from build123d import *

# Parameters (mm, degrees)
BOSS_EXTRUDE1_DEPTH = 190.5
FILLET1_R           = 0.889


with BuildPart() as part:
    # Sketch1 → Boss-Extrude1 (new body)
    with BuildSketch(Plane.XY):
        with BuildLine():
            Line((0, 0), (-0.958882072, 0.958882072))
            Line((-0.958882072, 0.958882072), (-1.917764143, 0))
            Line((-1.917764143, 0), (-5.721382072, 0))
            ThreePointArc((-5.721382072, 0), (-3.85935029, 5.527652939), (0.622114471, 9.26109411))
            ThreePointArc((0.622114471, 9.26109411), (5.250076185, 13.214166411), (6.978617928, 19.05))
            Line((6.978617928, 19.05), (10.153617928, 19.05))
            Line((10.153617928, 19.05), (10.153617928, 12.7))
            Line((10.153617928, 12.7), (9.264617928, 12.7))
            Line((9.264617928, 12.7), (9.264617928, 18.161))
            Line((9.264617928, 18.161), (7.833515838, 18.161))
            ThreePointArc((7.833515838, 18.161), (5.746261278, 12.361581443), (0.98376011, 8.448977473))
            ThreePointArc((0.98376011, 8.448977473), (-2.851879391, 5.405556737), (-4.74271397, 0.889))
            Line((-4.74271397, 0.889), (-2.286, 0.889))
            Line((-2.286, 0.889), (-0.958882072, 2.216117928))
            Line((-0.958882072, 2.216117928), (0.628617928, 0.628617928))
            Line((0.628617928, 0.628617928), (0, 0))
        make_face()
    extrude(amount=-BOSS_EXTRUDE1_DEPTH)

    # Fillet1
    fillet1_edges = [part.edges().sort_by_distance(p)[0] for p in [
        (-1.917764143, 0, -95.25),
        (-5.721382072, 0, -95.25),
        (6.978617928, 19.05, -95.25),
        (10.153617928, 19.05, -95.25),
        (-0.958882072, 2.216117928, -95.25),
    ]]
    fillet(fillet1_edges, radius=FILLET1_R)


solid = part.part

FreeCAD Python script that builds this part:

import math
import FreeCAD as App
import Part
import Sketcher
from FreeCAD import Vector
Q = App.Units.Quantity


def edges_at(feature, points):
    """Names of the edges that pass closest to the given points."""
    edges = feature.Shape.Edges
    near = lambda p: min(range(len(edges)), key=lambda i: edges[i].distToShape(Part.Vertex(*p))[0])
    return sorted({f"Edge{near(p) + 1}" for p in points})

doc = App.newDocument("Part")
body = doc.addObject("PartDesign::Body", "Body")

# Sketch on XY plane
sketch1 = doc.addObject("Sketcher::SketchObject", "Sketch")
body.addObject(sketch1)
sketch1.AttachmentSupport = (doc.XY_Plane, [""])
sketch1.MapMode = "FlatFace"
sketch1.addGeometry([
    Part.LineSegment(Vector(-1, 1, 0), Vector(0, 0, 0)),  # 0
    Part.LineSegment(Vector(0, 0, 0), Vector(0.6, 0.6, 0)),  # 1
    Part.LineSegment(Vector(0.6, 0.6, 0), Vector(-1, 2.2, 0)),  # 2
    Part.LineSegment(Vector(-1, 2.2, 0), Vector(-2.3, 0.9, 0)),  # 3
    Part.LineSegment(Vector(-2.3, 0.9, 0), Vector(-4.7, 0.9, 0)),  # 4
    Part.ArcOfCircle(Part.Circle(Vector(5, -0.5, 0), Vector(0, 0, 1), 9.8), math.radians(114), math.radians(172)),  # 5
    Part.ArcOfCircle(Part.Circle(Vector(-3.7, 19.1, 0), Vector(0, 0, 1), 11.6), math.radians(-66), math.radians(-4)),  # 6
    Part.LineSegment(Vector(7.8, 18.2, 0), Vector(9.3, 18.2, 0)),  # 7
    Part.LineSegment(Vector(9.3, 18.2, 0), Vector(9.3, 12.7, 0)),  # 8
    Part.LineSegment(Vector(9.3, 12.7, 0), Vector(10.2, 12.7, 0)),  # 9
    Part.LineSegment(Vector(10.2, 12.7, 0), Vector(10.2, 19.1, 0)),  # 10
    Part.LineSegment(Vector(10.2, 19.1, 0), Vector(7, 19.1, 0)),  # 11
    Part.ArcOfCircle(Part.Circle(Vector(-3.7, 19, 0), Vector(0, 0, 1), 10.7), math.radians(-66), math.radians(0)),  # 12
    Part.ArcOfCircle(Part.Circle(Vector(5, -0.5, 0), Vector(0, 0, 1), 10.7), math.radians(114), math.radians(177)),  # 13
    Part.LineSegment(Vector(-5.7, 0, 0), Vector(-1.9, 0, 0)),  # 14
    Part.LineSegment(Vector(-1.9, 0, 0), Vector(-1, 1, 0)),  # 15
], False)
sketch1.addConstraint([
    Sketcher.Constraint("Coincident", 0, 2, 1, 1),
    Sketcher.Constraint("Coincident", 1, 2, 2, 1),
    Sketcher.Constraint("Coincident", 2, 2, 3, 1),
    Sketcher.Constraint("Coincident", 3, 2, 4, 1),
    Sketcher.Constraint("Coincident", 4, 2, 5, 2),
    Sketcher.Constraint("Tangent", 5, 1, 6, 1),
    Sketcher.Constraint("Coincident", 6, 2, 7, 1),
    Sketcher.Constraint("Coincident", 7, 2, 8, 1),
    Sketcher.Constraint("Coincident", 8, 2, 9, 1),
    Sketcher.Constraint("Coincident", 9, 2, 10, 1),
    Sketcher.Constraint("Coincident", 10, 2, 11, 1),
    Sketcher.Constraint("Coincident", 11, 2, 12, 2),
    Sketcher.Constraint("Tangent", 12, 1, 13, 1),
    Sketcher.Constraint("Coincident", 13, 2, 14, 1),
    Sketcher.Constraint("Coincident", 14, 2, 15, 1),
    Sketcher.Constraint("Coincident", 15, 2, 0, 1),
    Sketcher.Constraint("Horizontal", 4),
    Sketcher.Constraint("Horizontal", 7),
    Sketcher.Constraint("Vertical", 8),
    Sketcher.Constraint("Horizontal", 9),
    Sketcher.Constraint("Vertical", 10),
    Sketcher.Constraint("Horizontal", 11),
    Sketcher.Constraint("Horizontal", 14),
    Sketcher.Constraint("Coincident", 0, 2, -1, 1),
    Sketcher.Constraint("Coincident", 12, 3, 6, 3),
    Sketcher.Constraint("Coincident", 13, 3, 5, 3),
    Sketcher.Constraint("Equal", 12, 13),
    Sketcher.Constraint("PointOnObject", 13, 2, -1),
    Sketcher.Constraint("Perpendicular", 0, 1),
    Sketcher.Constraint("Perpendicular", 1, 2),
    Sketcher.Constraint("Perpendicular", 2, 3),
    Sketcher.Constraint("Parallel", 3, 15),
    Sketcher.Constraint("Horizontal", 12, 3, 10, 2),
    Sketcher.Constraint("Vertical", 2, 2, 15, 2),
    Sketcher.Constraint("Equal", 0, 15),
    Sketcher.Constraint("Radius", 12, Q("0.421875 in")),
    Sketcher.Constraint("DistanceY", 10, 1, 10, 2, Q("0.25 in")),
    Sketcher.Constraint("DistanceY", -1, 1, 8, 2, Q("0.5 in")),
    Sketcher.Constraint("DistanceX", 9, 1, 9, 2, Q("0.035 in")),
    Sketcher.Constraint("DistanceX", 11, 2, 11, 1, Q("0.125 in")),
    Sketcher.Constraint("DistanceY", 8, 2, 8, 1, Q("0.215 in")),
    Sketcher.Constraint("DistanceX", 3, 2, -1, 1, Q("0.09 in")),
    Sketcher.Constraint("DistanceX", 13, 2, 1, 2, Q("0.25 in")),
    Sketcher.Constraint("Distance", 1, Q("0.035 in")),
    Sketcher.Constraint("DistanceY", -1, 1, 3, 2, Q("0.035 in")),
    Sketcher.Constraint("DistanceX", 12, 3, 1, 2, Q("0.171875 in")),
    Sketcher.Constraint("Radius", 5, Q("9.826625 mm")),
])
pad1 = doc.addObject("PartDesign::Pad", "Pad")
body.addObject(pad1)
pad1.Profile = sketch1
pad1.Length = Q("7.5 in")
pad1.Reversed = True
doc.recompute()

fillet = doc.addObject("PartDesign::Fillet", "Fillet")
body.addObject(fillet)
fillet.Base = (pad1, edges_at(pad1, [
    (-1.918, 0, -95.25),
    (-5.721, 0, -95.25),
    (6.979, 19.05, -95.25),
    (10.154, 19.05, -95.25),
    (-0.959, 2.216, -95.25),
]))
fillet.Radius = Q("0.035 in")

doc.recompute()
